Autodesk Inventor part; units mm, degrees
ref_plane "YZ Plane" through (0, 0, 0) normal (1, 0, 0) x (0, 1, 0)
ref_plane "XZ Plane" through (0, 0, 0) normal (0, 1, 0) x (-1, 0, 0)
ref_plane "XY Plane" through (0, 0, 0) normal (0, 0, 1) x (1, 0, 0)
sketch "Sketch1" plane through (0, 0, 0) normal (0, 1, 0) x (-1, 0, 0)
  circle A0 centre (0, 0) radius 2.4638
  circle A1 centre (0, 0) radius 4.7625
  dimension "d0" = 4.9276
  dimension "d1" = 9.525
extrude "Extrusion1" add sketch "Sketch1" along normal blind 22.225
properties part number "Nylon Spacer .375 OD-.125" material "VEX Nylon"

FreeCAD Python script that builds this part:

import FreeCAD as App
import Part
import Sketcher
Q = App.Units.Quantity

doc = App.newDocument("Part")
body = doc.addObject("PartDesign::Body", "Body")

sketch1 = body.newObject("Sketcher::SketchObject", "Sketch")
sketch1.AttachmentSupport = (doc.getObject("XZ_Plane"), [""])
sketch1.MapMode = "FlatFace"
sketch1.addGeometry([
    Part.Circle(App.Vector(0, 0, 0), App.Vector(0, 0, 1), 4.8),
    Part.Circle(App.Vector(0, 0, 0), App.Vector(0, 0, 1), 2.5),
], False)
sketch1.addConstraint([
    Sketcher.Constraint("Coincident", 0, 3, -1, 1),
    Sketcher.Constraint("Coincident", 1, 3, -1, 1),
    Sketcher.Constraint("Diameter", 0, Q("0.375 in")),
    Sketcher.Constraint("Diameter", 1, Q("0.194 in")),
])
pad1 = body.newObject("PartDesign::Pad", "Pad")
pad1.Profile = sketch1
pad1.Length = Q("0.875 in")
pad1.Reversed = True

doc.recompute()
